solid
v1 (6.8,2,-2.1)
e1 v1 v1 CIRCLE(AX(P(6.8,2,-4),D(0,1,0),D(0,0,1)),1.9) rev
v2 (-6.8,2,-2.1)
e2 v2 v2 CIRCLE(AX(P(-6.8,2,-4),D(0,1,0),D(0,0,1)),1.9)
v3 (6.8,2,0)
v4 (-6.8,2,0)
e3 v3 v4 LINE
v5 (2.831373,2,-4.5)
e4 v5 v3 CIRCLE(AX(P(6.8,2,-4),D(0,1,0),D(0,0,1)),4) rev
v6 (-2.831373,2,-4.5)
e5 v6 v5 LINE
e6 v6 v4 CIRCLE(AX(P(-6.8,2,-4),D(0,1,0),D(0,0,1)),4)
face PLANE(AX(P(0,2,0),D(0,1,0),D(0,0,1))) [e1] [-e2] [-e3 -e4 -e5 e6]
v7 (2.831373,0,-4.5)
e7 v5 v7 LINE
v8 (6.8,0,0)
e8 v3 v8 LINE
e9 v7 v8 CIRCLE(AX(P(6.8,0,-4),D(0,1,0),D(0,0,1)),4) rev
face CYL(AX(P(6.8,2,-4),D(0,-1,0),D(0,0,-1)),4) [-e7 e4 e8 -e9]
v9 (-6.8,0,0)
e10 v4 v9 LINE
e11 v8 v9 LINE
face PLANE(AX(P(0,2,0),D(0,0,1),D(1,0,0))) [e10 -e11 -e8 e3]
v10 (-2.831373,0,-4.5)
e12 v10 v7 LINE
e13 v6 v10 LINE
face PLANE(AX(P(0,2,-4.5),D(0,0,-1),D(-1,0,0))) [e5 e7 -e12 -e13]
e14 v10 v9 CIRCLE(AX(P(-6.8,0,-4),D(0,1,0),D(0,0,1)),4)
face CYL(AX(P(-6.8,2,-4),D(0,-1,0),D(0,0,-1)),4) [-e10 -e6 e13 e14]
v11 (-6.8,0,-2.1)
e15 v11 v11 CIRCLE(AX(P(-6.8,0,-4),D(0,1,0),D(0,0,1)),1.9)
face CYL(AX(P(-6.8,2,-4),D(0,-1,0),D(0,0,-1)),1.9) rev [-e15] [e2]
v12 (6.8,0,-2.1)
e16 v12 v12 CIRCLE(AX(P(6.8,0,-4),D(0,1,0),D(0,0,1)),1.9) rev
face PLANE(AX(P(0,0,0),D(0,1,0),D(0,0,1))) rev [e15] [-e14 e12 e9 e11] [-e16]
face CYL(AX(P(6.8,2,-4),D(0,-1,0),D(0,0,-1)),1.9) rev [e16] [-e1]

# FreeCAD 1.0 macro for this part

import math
import FreeCAD as App
import Part
import Sketcher

doc = App.newDocument("Part")
body = doc.addObject("PartDesign::Body", "Body")

sketch1 = body.newObject("Sketcher::SketchObject", "Sketch")
sketch1.AttachmentSupport = (doc.getObject("XZ_Plane"), [""])
sketch1.MapMode = "FlatFace"
sketch1.addGeometry([
    Part.ArcOfCircle(Part.Circle(App.Vector(-6.8, -4, 0), App.Vector(0, 0, 1), 4), math.radians(90), math.radians(353)),
    Part.LineSegment(App.Vector(-6.8, 0, 0), App.Vector(6.8, 0, 0)),
    Part.ArcOfCircle(Part.Circle(App.Vector(6.8, -4, 0), App.Vector(0, 0, 1), 4), math.radians(-173), math.radians(90)),
    Part.LineSegment(App.Vector(2.8, -4.5, 0), App.Vector(-2.8, -4.5, 0)),
    Part.Circle(App.Vector(-6.8, -4, 0), App.Vector(0, 0, 1), 1.9),
    Part.Circle(App.Vector(6.8, -4, 0), App.Vector(0, 0, 1), 1.9),
], False)
sketch1.addConstraint([
    Sketcher.Constraint("Tangent", 0, 1, 1, 1),
    Sketcher.Constraint("Tangent", 1, 2, 2, 2),
    Sketcher.Constraint("Coincident", 2, 1, 3, 1),
    Sketcher.Constraint("Coincident", 3, 2, 0, 2),
    Sketcher.Constraint("Horizontal", 1),
    Sketcher.Constraint("Horizontal", 3),
    Sketcher.Constraint("Coincident", 4, 3, 0, 3),
    Sketcher.Constraint("Coincident", 5, 3, 2, 3),
    Sketcher.Constraint("Equal", 0, 2),
    Sketcher.Constraint("Equal", 4, 5),
    Sketcher.Constraint("Symmetric", 0, 1, 1, 2, -1, 1),
    Sketcher.Constraint("Radius", 0, 4.0),
    Sketcher.Constraint("Diameter", 4, 3.8),
    Sketcher.Constraint("DistanceX", 1, 1, 1, 2, 13.6),
    Sketcher.Constraint("DistanceY", 2, 1, -1, 1, 4.5),
])
pad1 = body.newObject("PartDesign::Pad", "Pad")
pad1.Profile = sketch1
pad1.Length = 2
pad1.Reversed = True

doc.recompute()
